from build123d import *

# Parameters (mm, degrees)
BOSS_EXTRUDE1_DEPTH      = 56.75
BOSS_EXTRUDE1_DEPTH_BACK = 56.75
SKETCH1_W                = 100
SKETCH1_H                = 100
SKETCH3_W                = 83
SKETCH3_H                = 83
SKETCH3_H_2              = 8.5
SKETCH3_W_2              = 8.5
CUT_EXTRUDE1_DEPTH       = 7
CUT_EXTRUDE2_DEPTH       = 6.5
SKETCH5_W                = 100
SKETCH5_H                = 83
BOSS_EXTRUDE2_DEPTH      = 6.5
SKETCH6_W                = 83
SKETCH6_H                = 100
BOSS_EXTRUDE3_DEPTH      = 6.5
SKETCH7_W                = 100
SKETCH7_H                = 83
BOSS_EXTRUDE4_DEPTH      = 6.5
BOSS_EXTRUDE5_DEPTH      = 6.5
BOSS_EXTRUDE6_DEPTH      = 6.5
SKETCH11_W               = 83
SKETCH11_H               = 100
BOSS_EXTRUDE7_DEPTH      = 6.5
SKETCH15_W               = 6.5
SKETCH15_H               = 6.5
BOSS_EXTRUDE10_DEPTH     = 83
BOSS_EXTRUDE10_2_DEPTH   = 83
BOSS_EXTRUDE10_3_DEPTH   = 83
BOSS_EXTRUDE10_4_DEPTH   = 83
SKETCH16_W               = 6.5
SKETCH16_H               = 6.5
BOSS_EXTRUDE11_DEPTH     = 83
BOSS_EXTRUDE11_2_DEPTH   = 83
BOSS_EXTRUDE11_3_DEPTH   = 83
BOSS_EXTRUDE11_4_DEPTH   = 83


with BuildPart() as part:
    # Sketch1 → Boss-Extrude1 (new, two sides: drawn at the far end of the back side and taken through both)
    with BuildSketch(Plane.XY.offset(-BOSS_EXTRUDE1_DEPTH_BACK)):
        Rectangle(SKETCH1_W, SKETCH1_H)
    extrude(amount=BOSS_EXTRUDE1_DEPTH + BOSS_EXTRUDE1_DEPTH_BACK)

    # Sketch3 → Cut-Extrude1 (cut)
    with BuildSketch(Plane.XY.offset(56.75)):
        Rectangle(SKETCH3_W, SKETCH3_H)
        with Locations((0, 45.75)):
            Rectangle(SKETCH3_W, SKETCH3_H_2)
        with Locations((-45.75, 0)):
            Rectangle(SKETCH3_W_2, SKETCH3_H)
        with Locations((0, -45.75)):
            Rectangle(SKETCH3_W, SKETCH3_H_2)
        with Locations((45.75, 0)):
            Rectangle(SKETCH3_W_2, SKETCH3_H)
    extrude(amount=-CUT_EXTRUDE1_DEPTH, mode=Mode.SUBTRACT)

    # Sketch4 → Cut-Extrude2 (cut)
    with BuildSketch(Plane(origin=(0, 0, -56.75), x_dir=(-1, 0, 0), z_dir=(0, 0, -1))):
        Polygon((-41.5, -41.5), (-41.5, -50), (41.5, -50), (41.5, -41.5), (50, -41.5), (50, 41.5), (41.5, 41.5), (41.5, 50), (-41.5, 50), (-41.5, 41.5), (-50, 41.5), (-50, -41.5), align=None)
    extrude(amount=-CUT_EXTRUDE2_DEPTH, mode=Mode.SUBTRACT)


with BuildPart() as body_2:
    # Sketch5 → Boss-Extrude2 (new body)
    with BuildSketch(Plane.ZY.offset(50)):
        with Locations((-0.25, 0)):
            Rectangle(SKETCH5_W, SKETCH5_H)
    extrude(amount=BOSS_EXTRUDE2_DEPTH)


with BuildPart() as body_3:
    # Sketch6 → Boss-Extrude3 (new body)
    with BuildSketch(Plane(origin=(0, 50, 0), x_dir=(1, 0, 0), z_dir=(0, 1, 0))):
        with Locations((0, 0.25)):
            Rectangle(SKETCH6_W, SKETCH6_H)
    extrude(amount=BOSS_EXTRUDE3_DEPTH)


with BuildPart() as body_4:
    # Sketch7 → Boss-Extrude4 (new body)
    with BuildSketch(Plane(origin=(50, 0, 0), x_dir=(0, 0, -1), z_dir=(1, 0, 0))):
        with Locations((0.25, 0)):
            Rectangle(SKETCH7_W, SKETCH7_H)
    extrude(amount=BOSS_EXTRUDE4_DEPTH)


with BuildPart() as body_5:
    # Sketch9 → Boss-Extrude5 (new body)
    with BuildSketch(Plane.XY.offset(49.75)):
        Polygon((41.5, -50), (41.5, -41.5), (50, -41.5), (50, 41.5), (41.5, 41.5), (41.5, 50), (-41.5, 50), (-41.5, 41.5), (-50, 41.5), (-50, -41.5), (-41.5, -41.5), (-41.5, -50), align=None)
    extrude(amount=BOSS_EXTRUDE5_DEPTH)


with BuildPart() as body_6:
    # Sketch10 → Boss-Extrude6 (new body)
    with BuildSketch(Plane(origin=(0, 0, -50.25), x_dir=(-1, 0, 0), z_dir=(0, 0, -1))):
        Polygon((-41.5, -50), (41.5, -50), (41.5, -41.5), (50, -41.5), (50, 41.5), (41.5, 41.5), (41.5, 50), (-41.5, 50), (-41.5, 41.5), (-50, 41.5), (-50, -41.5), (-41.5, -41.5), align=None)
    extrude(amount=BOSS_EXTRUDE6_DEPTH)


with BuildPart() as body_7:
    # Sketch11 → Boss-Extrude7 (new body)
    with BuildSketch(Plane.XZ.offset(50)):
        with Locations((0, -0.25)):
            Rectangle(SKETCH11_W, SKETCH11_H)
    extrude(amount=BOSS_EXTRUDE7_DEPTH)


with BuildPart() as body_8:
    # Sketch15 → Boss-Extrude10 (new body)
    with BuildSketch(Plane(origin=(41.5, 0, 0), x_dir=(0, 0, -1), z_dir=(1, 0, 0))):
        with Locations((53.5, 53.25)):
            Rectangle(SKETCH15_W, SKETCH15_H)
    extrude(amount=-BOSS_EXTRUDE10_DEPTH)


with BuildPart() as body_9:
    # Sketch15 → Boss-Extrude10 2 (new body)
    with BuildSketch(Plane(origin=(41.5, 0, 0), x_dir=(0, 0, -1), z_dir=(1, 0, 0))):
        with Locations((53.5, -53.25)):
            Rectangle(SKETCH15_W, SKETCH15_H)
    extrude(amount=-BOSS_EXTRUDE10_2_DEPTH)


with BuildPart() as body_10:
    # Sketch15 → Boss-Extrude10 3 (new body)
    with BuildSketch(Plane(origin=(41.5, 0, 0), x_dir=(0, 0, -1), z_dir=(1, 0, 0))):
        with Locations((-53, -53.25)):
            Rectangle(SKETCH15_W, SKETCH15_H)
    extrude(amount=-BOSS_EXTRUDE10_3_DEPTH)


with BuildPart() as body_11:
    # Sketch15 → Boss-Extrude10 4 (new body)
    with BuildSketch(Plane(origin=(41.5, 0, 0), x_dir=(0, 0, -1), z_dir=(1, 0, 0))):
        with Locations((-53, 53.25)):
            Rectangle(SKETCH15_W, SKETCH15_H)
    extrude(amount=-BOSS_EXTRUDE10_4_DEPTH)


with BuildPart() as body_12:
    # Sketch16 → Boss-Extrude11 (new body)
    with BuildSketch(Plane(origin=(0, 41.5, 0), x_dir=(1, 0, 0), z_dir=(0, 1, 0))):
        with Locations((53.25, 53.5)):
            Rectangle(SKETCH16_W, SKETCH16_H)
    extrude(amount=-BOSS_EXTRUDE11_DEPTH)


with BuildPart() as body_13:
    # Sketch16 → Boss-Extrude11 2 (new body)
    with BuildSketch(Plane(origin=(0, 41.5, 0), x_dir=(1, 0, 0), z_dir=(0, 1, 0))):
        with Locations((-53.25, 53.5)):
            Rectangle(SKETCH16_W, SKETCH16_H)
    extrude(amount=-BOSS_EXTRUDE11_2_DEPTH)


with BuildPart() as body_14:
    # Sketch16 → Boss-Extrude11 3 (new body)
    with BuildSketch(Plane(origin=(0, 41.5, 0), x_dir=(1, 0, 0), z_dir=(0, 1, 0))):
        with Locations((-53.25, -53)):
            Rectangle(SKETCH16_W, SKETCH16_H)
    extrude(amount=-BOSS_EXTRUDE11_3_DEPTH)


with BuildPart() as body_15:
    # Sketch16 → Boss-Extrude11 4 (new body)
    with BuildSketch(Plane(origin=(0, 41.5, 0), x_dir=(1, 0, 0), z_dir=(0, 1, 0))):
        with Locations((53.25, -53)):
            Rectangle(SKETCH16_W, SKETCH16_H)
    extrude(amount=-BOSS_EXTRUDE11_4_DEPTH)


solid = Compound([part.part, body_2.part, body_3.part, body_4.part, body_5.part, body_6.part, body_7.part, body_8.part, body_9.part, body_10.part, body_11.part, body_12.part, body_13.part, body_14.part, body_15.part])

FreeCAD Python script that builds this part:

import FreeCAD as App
import Part
import Sketcher

doc = App.newDocument("Part")
params = doc.addObject("Spreadsheet::Sheet", "Params")
for row, (alias, value) in enumerate([
    ("sketch1_width", "100 mm"),
    ("pad1_length", "56.75 mm"),
    ("pad1_length2", "56.75 mm"),
    ("sketch2_width", "83 mm"),
    ("sketch2_width2", "8.5 mm"),
    ("pocket1_length", "7 mm"),
    ("sketch3_width", "83 mm"),
    ("sketch3_width2", "8.5 mm"),
    ("pocket2_length", "6.5 mm"),
    ("sketch4_width", "83 mm"),
    ("sketch4_height", "100 mm"),
    ("pad2_length", "6.5 mm"),
    ("sketch5_width", "83 mm"),
    ("sketch5_height", "100 mm"),
    ("pad3_length", "6.5 mm"),
    ("sketch6_width", "83 mm"),
    ("sketch6_height", "100 mm"),
    ("pad4_length", "6.5 mm"),
    ("sketch7_width", "83 mm"),
    ("sketch7_width2", "8.5 mm"),
    ("pad5_length", "6.5 mm"),
    ("sketch8_width", "83 mm"),
    ("sketch8_width2", "8.5 mm"),
    ("pad6_length", "6.5 mm"),
    ("sketch9_width", "83 mm"),
    ("sketch9_height", "100 mm"),
    ("pad7_length", "6.5 mm"),
    ("sketch10_width", "6.5 mm"),
    ("pad8_length", "83 mm"),
    ("sketch11_width", "6.5 mm"),
    ("pad9_length", "83 mm"),
    ("sketch12_width", "6.5 mm"),
    ("pad10_length", "83 mm"),
    ("sketch13_width", "6.5 mm"),
    ("pad11_length", "83 mm"),
    ("sketch14_width", "6.5 mm"),
    ("pad12_length", "83 mm"),
    ("sketch15_width", "6.5 mm"),
    ("pad13_length", "83 mm"),
    ("sketch16_width", "6.5 mm"),
    ("pad14_length", "83 mm"),
    ("sketch17_width", "6.5 mm"),
    ("pad15_length", "83 mm"),
], start=1):
    params.set(f"A{row}", alias)
    params.set(f"B{row}", "=" + value)
    params.setAlias(f"B{row}", alias)

body = doc.addObject("PartDesign::Body", "Body")

# Sketch on XY plane
sketch1 = doc.addObject("Sketcher::SketchObject", "Sketch")
body.addObject(sketch1)
sketch1.AttachmentSupport = (doc.XY_Plane, [""])
sketch1.MapMode = "FlatFace"
sketch1.addGeometry([
    Part.LineSegment(App.Vector(-50, 50, 0), App.Vector(-50, -50, 0)),
    Part.LineSegment(App.Vector(-50, -50, 0), App.Vector(50, -50, 0)),
    Part.LineSegment(App.Vector(50, -50, 0), App.Vector(50, 50, 0)),
    Part.LineSegment(App.Vector(50, 50, 0), App.Vector(-50, 50, 0)),
], False)
sketch1.addConstraint([
    Sketcher.Constraint("Coincident", 0, 2, 1, 1),
    Sketcher.Constraint("Coincident", 1, 2, 2, 1),
    Sketcher.Constraint("Coincident", 2, 2, 3, 1),
    Sketcher.Constraint("Coincident", 3, 2, 0, 1),
    Sketcher.Constraint("Vertical", 0),
    Sketcher.Constraint("Horizontal", 1),
    Sketcher.Constraint("Vertical", 2),
    Sketcher.Constraint("Horizontal", 3),
    Sketcher.Constraint("Symmetric", 0, 2, 2, 2, -1, 1),
    Sketcher.Constraint("Equal", 3, 0),
    Sketcher.Constraint("DistanceX", 1, 1, 1, 2, 100.0),
])
sketch1.setExpression("Constraints[10]", "Params.sketch1_width")
pad1 = doc.addObject("PartDesign::Pad", "Pad")
body.addObject(pad1)
pad1.Profile = sketch1
pad1.Type = "TwoLengths"
pad1.setExpression("Length", "Params.pad1_length")
pad1.setExpression("Length2", "Params.pad1_length2")

# Sketch on XY plane
sketch2 = doc.addObject("Sketcher::SketchObject", "Sketch001")
body.addObject(sketch2)
sketch2.AttachmentSupport = (doc.XY_Plane, [""])
sketch2.MapMode = "FlatFace"
sketch2.AttachmentOffset = App.Placement(App.Vector(0, 0, 56.75), App.Rotation())
sketch2.addGeometry([
    Part.LineSegment(App.Vector(42, 50, 0), App.Vector(-42, 50, 0)),  # 0
    Part.LineSegment(App.Vector(-42, 50, 0), App.Vector(-42, 42, 0)),  # 1
    Part.LineSegment(App.Vector(-42, 42, 0), App.Vector(-50, 42, 0)),  # 2
    Part.LineSegment(App.Vector(-50, 42, 0), App.Vector(-50, -42, 0)),  # 3
    Part.LineSegment(App.Vector(-50, -42, 0), App.Vector(-42, -42, 0)),  # 4
    Part.LineSegment(App.Vector(-42, -42, 0), App.Vector(-42, -50, 0)),  # 5
    Part.LineSegment(App.Vector(-42, -50, 0), App.Vector(42, -50, 0)),  # 6
    Part.LineSegment(App.Vector(42, -50, 0), App.Vector(42, -42, 0)),  # 7
    Part.LineSegment(App.Vector(42, -42, 0), App.Vector(50, -42, 0)),  # 8
    Part.LineSegment(App.Vector(50, -42, 0), App.Vector(50, 42, 0)),  # 9
    Part.LineSegment(App.Vector(50, 42, 0), App.Vector(42, 42, 0)),  # 10
    Part.LineSegment(App.Vector(42, 42, 0), App.Vector(42, 50, 0)),  # 11
], False)
sketch2.addConstraint([
    Sketcher.Constraint("Coincident", 0, 2, 1, 1),
    Sketcher.Constraint("Coincident", 1, 2, 2, 1),
    Sketcher.Constraint("Coincident", 2, 2, 3, 1),
    Sketcher.Constraint("Coincident", 3, 2, 4, 1),
    Sketcher.Constraint("Coincident", 4, 2, 5, 1),
    Sketcher.Constraint("Coincident", 5, 2, 6, 1),
    Sketcher.Constraint("Coincident", 6, 2, 7, 1),
    Sketcher.Constraint("Coincident", 7, 2, 8, 1),
    Sketcher.Constraint("Coincident", 8, 2, 9, 1),
    Sketcher.Constraint("Coincident", 9, 2, 10, 1),
    Sketcher.Constraint("Coincident", 10, 2, 11, 1),
    Sketcher.Constraint("Coincident", 11, 2, 0, 1),
    Sketcher.Constraint("Horizontal", 0),
    Sketcher.Constraint("Vertical", 1),
    Sketcher.Constraint("Horizontal", 2),
    Sketcher.Constraint("Vertical", 3),
    Sketcher.Constraint("Horizontal", 4),
    Sketcher.Constraint("Vertical", 5),
    Sketcher.Constraint("Horizontal", 6),
    Sketcher.Constraint("Vertical", 7),
    Sketcher.Constraint("Horizontal", 8),
    Sketcher.Constraint("Vertical", 9),
    Sketcher.Constraint("Horizontal", 10),
    Sketcher.Constraint("Vertical", 11),
    Sketcher.Constraint("Symmetric", 0, 2, 6, 2, -1, 1),
    Sketcher.Constraint("Symmetric", 2, 2, 8, 2, -1, 1),
    Sketcher.Constraint("Symmetric", 4, 2, 10, 2, -1, 1),
    Sketcher.Constraint("Symmetric", 4, 2, 7, 2, -2),
    Sketcher.Constraint("Equal", 10, 1),
    Sketcher.Constraint("Equal", 6, 3),
    Sketcher.Constraint("DistanceX", 0, 2, 0, 1, 83.0),
    Sketcher.Constraint("DistanceX", 2, 2, 2, 1, 8.5),
])
sketch2.setExpression("Constraints[30]", "Params.sketch2_width")
sketch2.setExpression("Constraints[31]", "Params.sketch2_width2")
pocket1 = doc.addObject("PartDesign::Pocket", "Pocket")
body.addObject(pocket1)
pocket1.Profile = sketch2
pocket1.setExpression("Length", "Params.pocket1_length")

# Sketch on XY plane
sketch3 = doc.addObject("Sketcher::SketchObject", "Sketch002")
body.addObject(sketch3)
sketch3.AttachmentSupport = (doc.XY_Plane, [""])
sketch3.MapMode = "FlatFace"
sketch3.AttachmentOffset = App.Placement(App.Vector(0, 0, -56.75), App.Rotation())
sketch3.addGeometry([
    Part.LineSegment(App.Vector(42, -42, 0), App.Vector(42, -50, 0)),  # 0
    Part.LineSegment(App.Vector(42, -50, 0), App.Vector(-42, -50, 0)),  # 1
    Part.LineSegment(App.Vector(-42, -50, 0), App.Vector(-42, -42, 0)),  # 2
    Part.LineSegment(App.Vector(-42, -42, 0), App.Vector(-50, -42, 0)),  # 3
    Part.LineSegment(App.Vector(-50, -42, 0), App.Vector(-50, 42, 0)),  # 4
    Part.LineSegment(App.Vector(-50, 42, 0), App.Vector(-42, 42, 0)),  # 5
    Part.LineSegment(App.Vector(-42, 42, 0), App.Vector(-42, 50, 0)),  # 6
    Part.LineSegment(App.Vector(-42, 50, 0), App.Vector(42, 50, 0)),  # 7
    Part.LineSegment(App.Vector(42, 50, 0), App.Vector(42, 42, 0)),  # 8
    Part.LineSegment(App.Vector(42, 42, 0), App.Vector(50, 42, 0)),  # 9
    Part.LineSegment(App.Vector(50, 42, 0), App.Vector(50, -42, 0)),  # 10
    Part.LineSegment(App.Vector(50, -42, 0), App.Vector(42, -42, 0)),  # 11
], False)
sketch3.addConstraint([
    Sketcher.Constraint("Coincident", 0, 2, 1, 1),
    Sketcher.Constraint("Coincident", 1, 2, 2, 1),
    Sketcher.Constraint("Coincident", 2, 2, 3, 1),
    Sketcher.Constraint("Coincident", 3, 2, 4, 1),
    Sketcher.Constraint("Coincident", 4, 2, 5, 1),
    Sketcher.Constraint("Coincident", 5, 2, 6, 1),
    Sketcher.Constraint("Coincident", 6, 2, 7, 1),
    Sketcher.Constraint("Coincident", 7, 2, 8, 1),
    Sketcher.Constraint("Coincident", 8, 2, 9, 1),
    Sketcher.Constraint("Coincident", 9, 2, 10, 1),
    Sketcher.Constraint("Coincident", 10, 2, 11, 1),
    Sketcher.Constraint("Coincident", 11, 2, 0, 1),
    Sketcher.Constraint("Vertical", 0),
    Sketcher.Constraint("Horizontal", 1),
    Sketcher.Constraint("Vertical", 2),
    Sketcher.Constraint("Horizontal", 3),
    Sketcher.Constraint("Vertical", 4),
    Sketcher.Constraint("Horizontal", 5),
    Sketcher.Constraint("Vertical", 6),
    Sketcher.Constraint("Horizontal", 7),
    Sketcher.Constraint("Vertical", 8),
    Sketcher.Constraint("Horizontal", 9),
    Sketcher.Constraint("Vertical", 10),
    Sketcher.Constraint("Horizontal", 11),
    Sketcher.Constraint("Symmetric", 0, 2, 6, 2, -1, 1),
    Sketcher.Constraint("Symmetric", 2, 2, 8, 2, -1, 1),
    Sketcher.Constraint("Symmetric", 4, 2, 10, 2, -1, 1),
    Sketcher.Constraint("Symmetric", 5, 2, 8, 2, -2),
    Sketcher.Constraint("Equal", 11, 0),
    Sketcher.Constraint("Equal", 7, 4),
    Sketcher.Constraint("DistanceX", 1, 2, 1, 1, 83.0),
    Sketcher.Constraint("DistanceX", 3, 2, 3, 1, 8.5),
])
sketch3.setExpression("Constraints[30]", "Params.sketch3_width")
sketch3.setExpression("Constraints[31]", "Params.sketch3_width2")
pocket2 = doc.addObject("PartDesign::Pocket", "Pocket001")
body.addObject(pocket2)
pocket2.Profile = sketch3
pocket2.setExpression("Length", "Params.pocket2_length")
pocket2.Reversed = True
body2 = doc.addObject("PartDesign::Body", "Body001")

# Sketch on YZ plane
sketch4 = doc.addObject("Sketcher::SketchObject", "Sketch003")
body2.addObject(sketch4)
sketch4.AttachmentSupport = (doc.getObject("YZ_Plane001"), [""])
sketch4.MapMode = "FlatFace"
sketch4.AttachmentOffset = App.Placement(App.Vector(0, 0, -50), App.Rotation())
sketch4.addGeometry([
    Part.LineSegment(App.Vector(42, -50, 0), App.Vector(-42, -50, 0)),
    Part.LineSegment(App.Vector(-42, -50, 0), App.Vector(-42, 50, 0)),
    Part.LineSegment(App.Vector(-42, 50, 0), App.Vector(42, 50, 0)),
    Part.LineSegment(App.Vector(42, 50, 0), App.Vector(42, -50, 0)),
], False)
sketch4.addConstraint([
    Sketcher.Constraint("Coincident", 0, 2, 1, 1),
    Sketcher.Constraint("Coincident", 1, 2, 2, 1),
    Sketcher.Constraint("Coincident", 2, 2, 3, 1),
    Sketcher.Constraint("Coincident", 3, 2, 0, 1),
    Sketcher.Constraint("Horizontal", 0),
    Sketcher.Constraint("Vertical", 1),
    Sketcher.Constraint("Horizontal", 2),
    Sketcher.Constraint("Vertical", 3),
    Sketcher.Constraint("DistanceX", 0, 2, 0, 1, 83.0),
    Sketcher.Constraint("DistanceY", 1, 1, 1, 2, 100.0),
    Sketcher.Constraint("DistanceX", 0, 2, -1, 1, 41.5),
    Sketcher.Constraint("DistanceY", 0, 2, -1, 1, 50.25),
])
sketch4.setExpression("Constraints[8]", "Params.sketch4_width")
sketch4.setExpression("Constraints[9]", "Params.sketch4_height")
pad2 = doc.addObject("PartDesign::Pad", "Pad001")
body2.addObject(pad2)
pad2.Profile = sketch4
pad2.setExpression("Length", "Params.pad2_length")
pad2.Reversed = True
body3 = doc.addObject("PartDesign::Body", "Body002")

# Sketch on XZ plane
sketch5 = doc.addObject("Sketcher::SketchObject", "Sketch004")
body3.addObject(sketch5)
sketch5.AttachmentSupport = (doc.getObject("XZ_Plane002"), [""])
sketch5.MapMode = "FlatFace"
sketch5.AttachmentOffset = App.Placement(App.Vector(0, 0, -50), App.Rotation())
sketch5.addGeometry([
    Part.LineSegment(App.Vector(-42, -50, 0), App.Vector(-42, 50, 0)),
    Part.LineSegment(App.Vector(-42, 50, 0), App.Vector(42, 50, 0)),
    Part.LineSegment(App.Vector(42, 50, 0), App.Vector(42, -50, 0)),
    Part.LineSegment(App.Vector(42, -50, 0), App.Vector(-42, -50, 0)),
], False)
sketch5.addConstraint([
    Sketcher.Constraint("Coincident", 0, 2, 1, 1),
    Sketcher.Constraint("Coincident", 1, 2, 2, 1),
    Sketcher.Constraint("Coincident", 2, 2, 3, 1),
    Sketcher.Constraint("Coincident", 3, 2, 0, 1),
    Sketcher.Constraint("Vertical", 0),
    Sketcher.Constraint("Horizontal", 1),
    Sketcher.Constraint("Vertical", 2),
    Sketcher.Constraint("Horizontal", 3),
    Sketcher.Constraint("DistanceX", 1, 1, 1, 2, 83.0),
    Sketcher.Constraint("DistanceY", 0, 1, 0, 2, 100.0),
    Sketcher.Constraint("DistanceX", 0, 2, -1, 1, 41.5),
    Sketcher.Constraint("DistanceY", -1, 1, 0, 2, 49.75),
])
sketch5.setExpression("Constraints[8]", "Params.sketch5_width")
sketch5.setExpression("Constraints[9]", "Params.sketch5_height")
pad3 = doc.addObject("PartDesign::Pad", "Pad002")
body3.addObject(pad3)
pad3.Profile = sketch5
pad3.setExpression("Length", "Params.pad3_length")
pad3.Reversed = True
body4 = doc.addObject("PartDesign::Body", "Body003")

# Sketch on YZ plane
sketch6 = doc.addObject("Sketcher::SketchObject", "Sketch005")
body4.addObject(sketch6)
sketch6.AttachmentSupport = (doc.getObject("YZ_Plane003"), [""])
sketch6.MapMode = "FlatFace"
sketch6.AttachmentOffset = App.Placement(App.Vector(0, 0, 50), App.Rotation())
sketch6.addGeometry([
    Part.LineSegment(App.Vector(42, 50, 0), App.Vector(-42, 50, 0)),
    Part.LineSegment(App.Vector(-42, 50, 0), App.Vector(-42, -50, 0)),
    Part.LineSegment(App.Vector(-42, -50, 0), App.Vector(42, -50, 0)),
    Part.LineSegment(App.Vector(42, -50, 0), App.Vector(42, 50, 0)),
], False)
sketch6.addConstraint([
    Sketcher.Constraint("Coincident", 0, 2, 1, 1),
    Sketcher.Constraint("Coincident", 1, 2, 2, 1),
    Sketcher.Constraint("Coincident", 2, 2, 3, 1),
    Sketcher.Constraint("Coincident", 3, 2, 0, 1),
    Sketcher.Constraint("Horizontal", 0),
    Sketcher.Constraint("Vertical", 1),
    Sketcher.Constraint("Horizontal", 2),
    Sketcher.Constraint("Vertical", 3),
    Sketcher.Constraint("DistanceX", 0, 2, 0, 1, 83.0),
    Sketcher.Constraint("DistanceY", 1, 2, 1, 1, 100.0),
    Sketcher.Constraint("DistanceX", 0, 2, -1, 1, 41.5),
    Sketcher.Constraint("DistanceY", -1, 1, 0, 2, 49.75),
])
sketch6.setExpression("Constraints[8]", "Params.sketch6_width")
sketch6.setExpression("Constraints[9]", "Params.sketch6_height")
pad4 = doc.addObject("PartDesign::Pad", "Pad003")
body4.addObject(pad4)
pad4.Profile = sketch6
pad4.setExpression("Length", "Params.pad4_length")
body5 = doc.addObject("PartDesign::Body", "Body004")

# Sketch on XY plane
sketch7 = doc.addObject("Sketcher::SketchObject", "Sketch006")
body5.addObject(sketch7)
sketch7.AttachmentSupport = (doc.getObject("XY_Plane004"), [""])
sketch7.MapMode = "FlatFace"
sketch7.AttachmentOffset = App.Placement(App.Vector(0, 0, 49.75), App.Rotation())
sketch7.addGeometry([
    Part.LineSegment(App.Vector(42, -50, 0), App.Vector(42, -42, 0)),  # 0
    Part.LineSegment(App.Vector(42, -42, 0), App.Vector(50, -42, 0)),  # 1
    Part.LineSegment(App.Vector(50, -42, 0), App.Vector(50, 42, 0)),  # 2
    Part.LineSegment(App.Vector(50, 42, 0), App.Vector(42, 42, 0)),  # 3
    Part.LineSegment(App.Vector(42, 42, 0), App.Vector(42, 50, 0)),  # 4
    Part.LineSegment(App.Vector(42, 50, 0), App.Vector(-42, 50, 0)),  # 5
    Part.LineSegment(App.Vector(-42, 50, 0), App.Vector(-42, 42, 0)),  # 6
    Part.LineSegment(App.Vector(-42, 42, 0), App.Vector(-50, 42, 0)),  # 7
    Part.LineSegment(App.Vector(-50, 42, 0), App.Vector(-50, -42, 0)),  # 8
    Part.LineSegment(App.Vector(-50, -42, 0), App.Vector(-42, -42, 0)),  # 9
    Part.LineSegment(App.Vector(-42, -42, 0), App.Vector(-42, -50, 0)),  # 10
    Part.LineSegment(App.Vector(-42, -50, 0), App.Vector(42, -50, 0)),  # 11
], False)
sketch7.addConstraint([
    Sketcher.Constraint("Coincident", 0, 2, 1, 1),
    Sketcher.Constraint("Coincident", 1, 2, 2, 1),
    Sketcher.Constraint("Coincident", 2, 2, 3, 1),
    Sketcher.Constraint("Coincident", 3, 2, 4, 1),
    Sketcher.Constraint("Coincident", 4, 2, 5, 1),
    Sketcher.Constraint("Coincident", 5, 2, 6, 1),
    Sketcher.Constraint("Coincident", 6, 2, 7, 1),
    Sketcher.Constraint("Coincident", 7, 2, 8, 1),
    Sketcher.Constraint("Coincident", 8, 2, 9, 1),
    Sketcher.Constraint("Coincident", 9, 2, 10, 1),
    Sketcher.Constraint("Coincident", 10, 2, 11, 1),
    Sketcher.Constraint("Coincident", 11, 2, 0, 1),
    Sketcher.Constraint("Vertical", 0),
    Sketcher.Constraint("Horizontal", 1),
    Sketcher.Constraint("Vertical", 2),
    Sketcher.Constraint("Horizontal", 3),
    Sketcher.Constraint("Vertical", 4),
    Sketcher.Constraint("Horizontal", 5),
    Sketcher.Constraint("Vertical", 6),
    Sketcher.Constraint("Horizontal", 7),
    Sketcher.Constraint("Vertical", 8),
    Sketcher.Constraint("Horizontal", 9),
    Sketcher.Constraint("Vertical", 10),
    Sketcher.Constraint("Horizontal", 11),
    Sketcher.Constraint("Symmetric", 0, 2, 6, 2, -1, 1),
    Sketcher.Constraint("Symmetric", 2, 2, 8, 2, -1, 1),
    Sketcher.Constraint("Symmetric", 4, 2, 10, 2, -1, 1),
    Sketcher.Constraint("Symmetric", 3, 2, 6, 2, -2),
    Sketcher.Constraint("Equal", 9, 0),
    Sketcher.Constraint("Equal", 11, 2),
    Sketcher.Constraint("DistanceX", 5, 2, 5, 1, 83.0),
    Sketcher.Constraint("DistanceX", 1, 1, 1, 2, 8.5),
])
sketch7.setExpression("Constraints[30]", "Params.sketch7_width")
sketch7.setExpression("Constraints[31]", "Params.sketch7_width2")
pad5 = doc.addObject("PartDesign::Pad", "Pad004")
body5.addObject(pad5)
pad5.Profile = sketch7
pad5.setExpression("Length", "Params.pad5_length")
body6 = doc.addObject("PartDesign::Body", "Body005")

# Sketch on XY plane
sketch8 = doc.addObject("Sketcher::SketchObject", "Sketch007")
body6.addObject(sketch8)
sketch8.AttachmentSupport = (doc.getObject("XY_Plane005"), [""])
sketch8.MapMode = "FlatFace"
sketch8.AttachmentOffset = App.Placement(App.Vector(0, 0, -50.25), App.Rotation())
sketch8.addGeometry([
    Part.LineSegment(App.Vector(42, -50, 0), App.Vector(-42, -50, 0)),  # 0
    Part.LineSegment(App.Vector(-42, -50, 0), App.Vector(-42, -42, 0)),  # 1
    Part.LineSegment(App.Vector(-42, -42, 0), App.Vector(-50, -42, 0)),  # 2
    Part.LineSegment(App.Vector(-50, -42, 0), App.Vector(-50, 42, 0)),  # 3
    Part.LineSegment(App.Vector(-50, 42, 0), App.Vector(-42, 42, 0)),  # 4
    Part.LineSegment(App.Vector(-42, 42, 0), App.Vector(-42, 50, 0)),  # 5
    Part.LineSegment(App.Vector(-42, 50, 0), App.Vector(42, 50, 0)),  # 6
    Part.LineSegment(App.Vector(42, 50, 0), App.Vector(42, 42, 0)),  # 7
    Part.LineSegment(App.Vector(42, 42, 0), App.Vector(50, 42, 0)),  # 8
    Part.LineSegment(App.Vector(50, 42, 0), App.Vector(50, -42, 0)),  # 9
    Part.LineSegment(App.Vector(50, -42, 0), App.Vector(42, -42, 0)),  # 10
    Part.LineSegment(App.Vector(42, -42, 0), App.Vector(42, -50, 0)),  # 11
], False)
sketch8.addConstraint([
    Sketcher.Constraint("Coincident", 0, 2, 1, 1),
    Sketcher.Constraint("Coincident", 1, 2, 2, 1),
    Sketcher.Constraint("Coincident", 2, 2, 3, 1),
    Sketcher.Constraint("Coincident", 3, 2, 4, 1),
    Sketcher.Constraint("Coincident", 4, 2, 5, 1),
    Sketcher.Constraint("Coincident", 5, 2, 6, 1),
    Sketcher.Constraint("Coincident", 6, 2, 7, 1),
    Sketcher.Constraint("Coincident", 7, 2, 8, 1),
    Sketcher.Constraint("Coincident", 8, 2, 9, 1),
    Sketcher.Constraint("Coincident", 9, 2, 10, 1),
    Sketcher.Constraint("Coincident", 10, 2, 11, 1),
    Sketcher.Constraint("Coincident", 11, 2, 0, 1),
    Sketcher.Constraint("Horizontal", 0),
    Sketcher.Constraint("Vertical", 1),
    Sketcher.Constraint("Horizontal", 2),
    Sketcher.Constraint("Vertical", 3),
    Sketcher.Constraint("Horizontal", 4),
    Sketcher.Constraint("Vertical", 5),
    Sketcher.Constraint("Horizontal", 6),
    Sketcher.Constraint("Vertical", 7),
    Sketcher.Constraint("Horizontal", 8),
    Sketcher.Constraint("Vertical", 9),
    Sketcher.Constraint("Horizontal", 10),
    Sketcher.Constraint("Vertical", 11),
    Sketcher.Constraint("Symmetric", 0, 2, 6, 2, -1, 1),
    Sketcher.Constraint("Symmetric", 2, 2, 8, 2, -1, 1),
    Sketcher.Constraint("Symmetric", 4, 2, 10, 2, -1, 1),
    Sketcher.Constraint("Symmetric", 4, 2, 7, 2, -2),
    Sketcher.Constraint("Equal", 10, 1),
    Sketcher.Constraint("Equal", 6, 3),
    Sketcher.Constraint("DistanceX", 0, 2, 0, 1, 83.0),
    Sketcher.Constraint("DistanceX", 2, 2, 2, 1, 8.5),
])
sketch8.setExpression("Constraints[30]", "Params.sketch8_width")
sketch8.setExpression("Constraints[31]", "Params.sketch8_width2")
pad6 = doc.addObject("PartDesign::Pad", "Pad005")
body6.addObject(pad6)
pad6.Profile = sketch8
pad6.setExpression("Length", "Params.pad6_length")
pad6.Reversed = True
body7 = doc.addObject("PartDesign::Body", "Body006")

# Sketch on XZ plane
sketch9 = doc.addObject("Sketcher::SketchObject", "Sketch008")
body7.addObject(sketch9)
sketch9.AttachmentSupport = (doc.getObject("XZ_Plane006"), [""])
sketch9.MapMode = "FlatFace"
sketch9.AttachmentOffset = App.Placement(App.Vector(0, 0, 50), App.Rotation())
sketch9.addGeometry([
    Part.LineSegment(App.Vector(-42, 50, 0), App.Vector(-42, -50, 0)),
    Part.LineSegment(App.Vector(-42, -50, 0), App.Vector(42, -50, 0)),
    Part.LineSegment(App.Vector(42, -50, 0), App.Vector(42, 50, 0)),
    Part.LineSegment(App.Vector(42, 50, 0), App.Vector(-42, 50, 0)),
], False)
sketch9.addConstraint([
    Sketcher.Constraint("Coincident", 0, 2, 1, 1),
    Sketcher.Constraint("Coincident", 1, 2, 2, 1),
    Sketcher.Constraint("Coincident", 2, 2, 3, 1),
    Sketcher.Constraint("Coincident", 3, 2, 0, 1),
    Sketcher.Constraint("Vertical", 0),
    Sketcher.Constraint("Horizontal", 1),
    Sketcher.Constraint("Vertical", 2),
    Sketcher.Constraint("Horizontal", 3),
    Sketcher.Constraint("DistanceX", 1, 1, 1, 2, 83.0),
    Sketcher.Constraint("DistanceY", 0, 2, 0, 1, 100.0),
    Sketcher.Constraint("DistanceX", 0, 2, -1, 1, 41.5),
    Sketcher.Constraint("DistanceY", 0, 2, -1, 1, 50.25),
])
sketch9.setExpression("Constraints[8]", "Params.sketch9_width")
sketch9.setExpression("Constraints[9]", "Params.sketch9_height")
pad7 = doc.addObject("PartDesign::Pad", "Pad006")
body7.addObject(pad7)
pad7.Profile = sketch9
pad7.setExpression("Length", "Params.pad7_length")
body8 = doc.addObject("PartDesign::Body", "Body007")

# Sketch on YZ plane
sketch10 = doc.addObject("Sketcher::SketchObject", "Sketch009")
body8.addObject(sketch10)
sketch10.AttachmentSupport = (doc.getObject("YZ_Plane007"), [""])
sketch10.MapMode = "FlatFace"
sketch10.AttachmentOffset = App.Placement(App.Vector(0, 0, 41.5), App.Rotation())
sketch10.addGeometry([
    Part.LineSegment(App.Vector(56, -50, 0), App.Vector(50, -50, 0)),
    Part.LineSegment(App.Vector(50, -50, 0), App.Vector(50, -57, 0)),
    Part.LineSegment(App.Vector(50, -57, 0), App.Vector(56, -57, 0)),
    Part.LineSegment(App.Vector(56, -57, 0), App.Vector(56, -50, 0)),
], False)
sketch10.addConstraint([
    Sketcher.Constraint("Coincident", 0, 2, 1, 1),
    Sketcher.Constraint("Coincident", 1, 2, 2, 1),
    Sketcher.Constraint("Coincident", 2, 2, 3, 1),
    Sketcher.Constraint("Coincident", 3, 2, 0, 1),
    Sketcher.Constraint("Horizontal", 0),
    Sketcher.Constraint("Vertical", 1),
    Sketcher.Constraint("Horizontal", 2),
    Sketcher.Constraint("Vertical", 3),
    Sketcher.Constraint("Equal", 2, 1),
    Sketcher.Constraint("DistanceX", 0, 2, 0, 1, 6.5),
    Sketcher.Constraint("DistanceX", -1, 1, 0, 2, 50.0),
    Sketcher.Constraint("DistanceY", 0, 2, -1, 1, 50.25),
])
sketch10.setExpression("Constraints[9]", "Params.sketch10_width")
pad8 = doc.addObject("PartDesign::Pad", "Pad007")
body8.addObject(pad8)
pad8.Profile = sketch10
pad8.setExpression("Length", "Params.pad8_length")
pad8.Reversed = True
body9 = doc.addObject("PartDesign::Body", "Body008")

# Sketch on YZ plane
sketch11 = doc.addObject("Sketcher::SketchObject", "Sketch010")
body9.addObject(sketch11)
sketch11.AttachmentSupport = (doc.getObject("YZ_Plane008"), [""])
sketch11.MapMode = "FlatFace"
sketch11.AttachmentOffset = App.Placement(App.Vector(0, 0, 41.5), App.Rotation())
sketch11.addGeometry([
    Part.LineSegment(App.Vector(-50, -50, 0), App.Vector(-56, -50, 0)),
    Part.LineSegment(App.Vector(-56, -50, 0), App.Vector(-56, -57, 0)),
    Part.LineSegment(App.Vector(-56, -57, 0), App.Vector(-50, -57, 0)),
    Part.LineSegment(App.Vector(-50, -57, 0), App.Vector(-50, -50, 0)),
], False)
sketch11.addConstraint([
    Sketcher.Constraint("Coincident", 0, 2, 1, 1),
    Sketcher.Constraint("Coincident", 1, 2, 2, 1),
    Sketcher.Constraint("Coincident", 2, 2, 3, 1),
    Sketcher.Constraint("Coincident", 3, 2, 0, 1),
    Sketcher.Constraint("Horizontal", 0),
    Sketcher.Constraint("Vertical", 1),
    Sketcher.Constraint("Horizontal", 2),
    Sketcher.Constraint("Vertical", 3),
    Sketcher.Constraint("Equal", 2, 1),
    Sketcher.Constraint("DistanceX", 0, 2, 0, 1, 6.5),
    Sketcher.Constraint("DistanceX", 2, 2, -1, 1, 50.0),
    Sketcher.Constraint("DistanceY", 0, 2, -1, 1, 50.25),
])
sketch11.setExpression("Constraints[9]", "Params.sketch11_width")
pad9 = doc.addObject("PartDesign::Pad", "Pad008")
body9.addObject(pad9)
pad9.Profile = sketch11
pad9.setExpression("Length", "Params.pad9_length")
pad9.Reversed = True
body10 = doc.addObject("PartDesign::Body", "Body009")

# Sketch on YZ plane
sketch12 = doc.addObject("Sketcher::SketchObject", "Sketch011")
body10.addObject(sketch12)
sketch12.AttachmentSupport = (doc.getObject("YZ_Plane009"), [""])
sketch12.MapMode = "FlatFace"
sketch12.AttachmentOffset = App.Placement(App.Vector(0, 0, 41.5), App.Rotation())
sketch12.addGeometry([
    Part.LineSegment(App.Vector(-50, 56, 0), App.Vector(-56, 56, 0)),
    Part.LineSegment(App.Vector(-56, 56, 0), App.Vector(-56, 50, 0)),
    Part.LineSegment(App.Vector(-56, 50, 0), App.Vector(-50, 50, 0)),
    Part.LineSegment(App.Vector(-50, 50, 0), App.Vector(-50, 56, 0)),
], False)
sketch12.addConstraint([
    Sketcher.Constraint("Coincident", 0, 2, 1, 1),
    Sketcher.Constraint("Coincident", 1, 2, 2, 1),
    Sketcher.Constraint("Coincident", 2, 2, 3, 1),
    Sketcher.Constraint("Coincident", 3, 2, 0, 1),
    Sketcher.Constraint("Horizontal", 0),
    Sketcher.Constraint("Vertical", 1),
    Sketcher.Constraint("Horizontal", 2),
    Sketcher.Constraint("Vertical", 3),
    Sketcher.Constraint("Equal", 2, 1),
    Sketcher.Constraint("DistanceX", 0, 2, 0, 1, 6.5),
    Sketcher.Constraint("DistanceX", 2, 2, -1, 1, 50.0),
    Sketcher.Constraint("DistanceY", -1, 1, 0, 2, 56.25),
])
sketch12.setExpression("Constraints[9]", "Params.sketch12_width")
pad10 = doc.addObject("PartDesign::Pad", "Pad009")
body10.addObject(pad10)
pad10.Profile = sketch12
pad10.setExpression("Length", "Params.pad10_length")
pad10.Reversed = True
body11 = doc.addObject("PartDesign::Body", "Body010")

# Sketch on YZ plane
sketch13 = doc.addObject("Sketcher::SketchObject", "Sketch012")
body11.addObject(sketch13)
sketch13.AttachmentSupport = (doc.getObject("YZ_Plane010"), [""])
sketch13.MapMode = "FlatFace"
sketch13.AttachmentOffset = App.Placement(App.Vector(0, 0, 41.5), App.Rotation())
sketch13.addGeometry([
    Part.LineSegment(App.Vector(56, 56, 0), App.Vector(50, 56, 0)),
    Part.LineSegment(App.Vector(50, 56, 0), App.Vector(50, 50, 0)),
    Part.LineSegment(App.Vector(50, 50, 0), App.Vector(56, 50, 0)),
    Part.LineSegment(App.Vector(56, 50, 0), App.Vector(56, 56, 0)),
], False)
sketch13.addConstraint([
    Sketcher.Constraint("Coincident", 0, 2, 1, 1),
    Sketcher.Constraint("Coincident", 1, 2, 2, 1),
    Sketcher.Constraint("Coincident", 2, 2, 3, 1),
    Sketcher.Constraint("Coincident", 3, 2, 0, 1),
    Sketcher.Constraint("Horizontal", 0),
    Sketcher.Constraint("Vertical", 1),
    Sketcher.Constraint("Horizontal", 2),
    Sketcher.Constraint("Vertical", 3),
    Sketcher.Constraint("Equal", 2, 1),
    Sketcher.Constraint("DistanceX", 0, 2, 0, 1, 6.5),
    Sketcher.Constraint("DistanceX", -1, 1, 0, 2, 50.0),
    Sketcher.Constraint("DistanceY", -1, 1, 0, 2, 56.25),
])
sketch13.setExpression("Constraints[9]", "Params.sketch13_width")
pad11 = doc.addObject("PartDesign::Pad", "Pad010")
body11.addObject(pad11)
pad11.Profile = sketch13
pad11.setExpression("Length", "Params.pad11_length")
pad11.Reversed = True
body12 = doc.addObject("PartDesign::Body", "Body011")

# Sketch on XZ plane
sketch14 = doc.addObject("Sketcher::SketchObject", "Sketch013")
body12.addObject(sketch14)
sketch14.AttachmentSupport = (doc.getObject("XZ_Plane011"), [""])
sketch14.MapMode = "FlatFace"
sketch14.AttachmentOffset = App.Placement(App.Vector(0, 0, -41.5), App.Rotation())
sketch14.addGeometry([
    Part.LineSegment(App.Vector(50, -57, 0), App.Vector(50, -50, 0)),
    Part.LineSegment(App.Vector(50, -50, 0), App.Vector(56, -50, 0)),
    Part.LineSegment(App.Vector(56, -50, 0), App.Vector(56, -57, 0)),
    Part.LineSegment(App.Vector(56, -57, 0), App.Vector(50, -57, 0)),
], False)
sketch14.addConstraint([
    Sketcher.Constraint("Coincident", 0, 2, 1, 1),
    Sketcher.Constraint("Coincident", 1, 2, 2, 1),
    Sketcher.Constraint("Coincident", 2, 2, 3, 1),
    Sketcher.Constraint("Coincident", 3, 2, 0, 1),
    Sketcher.Constraint("Vertical", 0),
    Sketcher.Constraint("Horizontal", 1),
    Sketcher.Constraint("Vertical", 2),
    Sketcher.Constraint("Horizontal", 3),
    Sketcher.Constraint("Equal", 3, 0),
    Sketcher.Constraint("DistanceX", 1, 1, 1, 2, 6.5),
    Sketcher.Constraint("DistanceX", -1, 1, 0, 2, 50.0),
    Sketcher.Constraint("DistanceY", 0, 2, -1, 1, 50.25),
])
sketch14.setExpression("Constraints[9]", "Params.sketch14_width")
pad12 = doc.addObject("PartDesign::Pad", "Pad011")
body12.addObject(pad12)
pad12.Profile = sketch14
pad12.setExpression("Length", "Params.pad12_length")
body13 = doc.addObject("PartDesign::Body", "Body012")

# Sketch on XZ plane
sketch15 = doc.addObject("Sketcher::SketchObject", "Sketch014")
body13.addObject(sketch15)
sketch15.AttachmentSupport = (doc.getObject("XZ_Plane012"), [""])
sketch15.MapMode = "FlatFace"
sketch15.AttachmentOffset = App.Placement(App.Vector(0, 0, -41.5), App.Rotation())
sketch15.addGeometry([
    Part.LineSegment(App.Vector(-56, -57, 0), App.Vector(-56, -50, 0)),
    Part.LineSegment(App.Vector(-56, -50, 0), App.Vector(-50, -50, 0)),
    Part.LineSegment(App.Vector(-50, -50, 0), App.Vector(-50, -57, 0)),
    Part.LineSegment(App.Vector(-50, -57, 0), App.Vector(-56, -57, 0)),
], False)
sketch15.addConstraint([
    Sketcher.Constraint("Coincident", 0, 2, 1, 1),
    Sketcher.Constraint("Coincident", 1, 2, 2, 1),
    Sketcher.Constraint("Coincident", 2, 2, 3, 1),
    Sketcher.Constraint("Coincident", 3, 2, 0, 1),
    Sketcher.Constraint("Vertical", 0),
    Sketcher.Constraint("Horizontal", 1),
    Sketcher.Constraint("Vertical", 2),
    Sketcher.Constraint("Horizontal", 3),
    Sketcher.Constraint("Equal", 3, 0),
    Sketcher.Constraint("DistanceX", 1, 1, 1, 2, 6.5),
    Sketcher.Constraint("DistanceX", 1, 2, -1, 1, 50.0),
    Sketcher.Constraint("DistanceY", 0, 2, -1, 1, 50.25),
])
sketch15.setExpression("Constraints[9]", "Params.sketch15_width")
pad13 = doc.addObject("PartDesign::Pad", "Pad012")
body13.addObject(pad13)
pad13.Profile = sketch15
pad13.setExpression("Length", "Params.pad13_length")
body14 = doc.addObject("PartDesign::Body", "Body013")

# Sketch on XZ plane
sketch16 = doc.addObject("Sketcher::SketchObject", "Sketch015")
body14.addObject(sketch16)
sketch16.AttachmentSupport = (doc.getObject("XZ_Plane013"), [""])
sketch16.MapMode = "FlatFace"
sketch16.AttachmentOffset = App.Placement(App.Vector(0, 0, -41.5), App.Rotation())
sketch16.addGeometry([
    Part.LineSegment(App.Vector(-56, 50, 0), App.Vector(-56, 56, 0)),
    Part.LineSegment(App.Vector(-56, 56, 0), App.Vector(-50, 56, 0)),
    Part.LineSegment(App.Vector(-50, 56, 0), App.Vector(-50, 50, 0)),
    Part.LineSegment(App.Vector(-50, 50, 0), App.Vector(-56, 50, 0)),
], False)
sketch16.addConstraint([
    Sketcher.Constraint("Coincident", 0, 2, 1, 1),
    Sketcher.Constraint("Coincident", 1, 2, 2, 1),
    Sketcher.Constraint("Coincident", 2, 2, 3, 1),
    Sketcher.Constraint("Coincident", 3, 2, 0, 1),
    Sketcher.Constraint("Vertical", 0),
    Sketcher.Constraint("Horizontal", 1),
    Sketcher.Constraint("Vertical", 2),
    Sketcher.Constraint("Horizontal", 3),
    Sketcher.Constraint("Equal", 3, 0),
    Sketcher.Constraint("DistanceX", 1, 1, 1, 2, 6.5),
    Sketcher.Constraint("DistanceX", 1, 2, -1, 1, 50.0),
    Sketcher.Constraint("DistanceY", -1, 1, 0, 2, 56.25),
])
sketch16.setExpression("Constraints[9]", "Params.sketch16_width")
pad14 = doc.addObject("PartDesign::Pad", "Pad013")
body14.addObject(pad14)
pad14.Profile = sketch16
pad14.setExpression("Length", "Params.pad14_length")
body15 = doc.addObject("PartDesign::Body", "Body014")

# Sketch on XZ plane
sketch17 = doc.addObject("Sketcher::SketchObject", "Sketch016")
body15.addObject(sketch17)
sketch17.AttachmentSupport = (doc.getObject("XZ_Plane014"), [""])
sketch17.MapMode = "FlatFace"
sketch17.AttachmentOffset = App.Placement(App.Vector(0, 0, -41.5), App.Rotation())
sketch17.addGeometry([
    Part.LineSegment(App.Vector(50, 50, 0), App.Vector(50, 56, 0)),
    Part.LineSegment(App.Vector(50, 56, 0), App.Vector(56, 56, 0)),
    Part.LineSegment(App.Vector(56, 56, 0), App.Vector(56, 50, 0)),
    Part.LineSegment(App.Vector(56, 50, 0), App.Vector(50, 50, 0)),
], False)
sketch17.addConstraint([
    Sketcher.Constraint("Coincident", 0, 2, 1, 1),
    Sketcher.Constraint("Coincident", 1, 2, 2, 1),
    Sketcher.Constraint("Coincident", 2, 2, 3, 1),
    Sketcher.Constraint("Coincident", 3, 2, 0, 1),
    Sketcher.Constraint("Vertical", 0),
    Sketcher.Constraint("Horizontal", 1),
    Sketcher.Constraint("Vertical", 2),
    Sketcher.Constraint("Horizontal", 3),
    Sketcher.Constraint("Equal", 3, 0),
    Sketcher.Constraint("DistanceX", 1, 1, 1, 2, 6.5),
    Sketcher.Constraint("DistanceX", -1, 1, 0, 2, 50.0),
    Sketcher.Constraint("DistanceY", -1, 1, 0, 2, 56.25),
])
sketch17.setExpression("Constraints[9]", "Params.sketch17_width")
pad15 = doc.addObject("PartDesign::Pad", "Pad014")
body15.addObject(pad15)
pad15.Profile = sketch17
pad15.setExpression("Length", "Params.pad15_length")

doc.recompute()
